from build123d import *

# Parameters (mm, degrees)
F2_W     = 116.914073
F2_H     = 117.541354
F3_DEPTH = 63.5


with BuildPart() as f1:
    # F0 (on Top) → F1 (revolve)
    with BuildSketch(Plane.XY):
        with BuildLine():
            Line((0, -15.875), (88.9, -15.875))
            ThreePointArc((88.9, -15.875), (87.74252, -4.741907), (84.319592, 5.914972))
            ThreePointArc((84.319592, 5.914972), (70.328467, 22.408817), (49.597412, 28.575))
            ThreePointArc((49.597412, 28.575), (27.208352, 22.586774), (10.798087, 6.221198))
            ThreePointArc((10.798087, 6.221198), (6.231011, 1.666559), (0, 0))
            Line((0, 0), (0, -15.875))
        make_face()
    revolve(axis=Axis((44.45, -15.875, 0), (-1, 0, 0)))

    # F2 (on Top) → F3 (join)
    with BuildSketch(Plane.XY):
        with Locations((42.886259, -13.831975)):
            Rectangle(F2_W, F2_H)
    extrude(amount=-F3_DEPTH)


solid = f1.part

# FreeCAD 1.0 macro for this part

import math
import FreeCAD as App
import Part
import Sketcher
Q = App.Units.Quantity

doc = App.newDocument("Part")
body = doc.addObject("PartDesign::Body", "Body")

# Sketch on XY plane
sketch1 = body.newObject("Sketcher::SketchObject", "Sketch")
sketch1.AttachmentSupport = (doc.getObject("XY_Plane"), [""])
sketch1.MapMode = "FlatFace"
sketch1.addGeometry([
    Part.LineSegment(App.Vector(0, -16, 0), App.Vector(89, -16, 0)),  # 0
    Part.ArcOfCircle(Part.Circle(App.Vector(35, -16, 0), App.Vector(0, 0, 1), 54), math.radians(0), math.radians(24)),  # 1
    Part.ArcOfCircle(Part.Circle(App.Vector(50, -9, 0), App.Vector(0, 0, 1), 38), math.radians(24), math.radians(90)),  # 2
    Part.ArcOfCircle(Part.Circle(App.Vector(50, -16, 0), App.Vector(0, 0, 1), 45), math.radians(90), math.radians(150)),  # 3
    Part.ArcOfCircle(Part.Circle(App.Vector(0, 12, 0), App.Vector(0, 0, 1), 12), math.radians(-90), math.radians(-30)),  # 4
    Part.LineSegment(App.Vector(0, 0, 0), App.Vector(0, -16, 0)),  # 5
], False)
sketch1.addGeometry(Part.LineSegment(App.Vector(89, -16, 0), App.Vector(0, -16, 0)), True)  # axis
sketch1.addConstraint([
    Sketcher.Constraint("Coincident", 0, 2, 1, 1),
    Sketcher.Constraint("Tangent", 1, 2, 2, 1),
    Sketcher.Constraint("Tangent", 2, 2, 3, 1),
    Sketcher.Constraint("Tangent", 3, 2, 4, 2),
    Sketcher.Constraint("Coincident", 4, 1, 5, 1),
    Sketcher.Constraint("Coincident", 5, 2, 0, 1),
    Sketcher.Constraint("Horizontal", 0),
    Sketcher.Constraint("Vertical", 5),
    Sketcher.Constraint("Horizontal", 6),
    Sketcher.Constraint("Coincident", 4, 1, -1, 1),
    Sketcher.Constraint("Coincident", 6, 1, 0, 2),
    Sketcher.Constraint("PointOnObject", 4, 3, -2),
    Sketcher.Constraint("PointOnObject", 6, 2, -2),
    Sketcher.Constraint("Vertical", 2, 3, 3, 3),
    Sketcher.Constraint("DistanceX", 0, 1, 0, 2, Q("3.5 in")),
    Sketcher.Constraint("DistanceY", 5, 2, 5, 1, Q("0.625 in")),
    Sketcher.Constraint("DistanceY", 1, 3, 2, 2, Q("1.7500001 in")),
    Sketcher.Constraint("DistanceY", 1, 3, -1, 1, Q("0.6250001 in")),
    Sketcher.Constraint("Radius", 2, Q("37.932581 mm")),
    Sketcher.Constraint("Radius", 3, Q("44.84875 mm")),
    Sketcher.Constraint("Radius", 1, Q("54.119974 mm")),
])
revolution = body.newObject("PartDesign::Revolution", "Revolution")
revolution.Profile = sketch1
revolution.ReferenceAxis = (sketch1, ["Axis0"])
revolution.Angle = 360

# Sketch on XY plane
sketch2 = body.newObject("Sketcher::SketchObject", "Sketch001")
sketch2.AttachmentSupport = (doc.getObject("XY_Plane"), [""])
sketch2.MapMode = "FlatFace"
sketch2.addGeometry([
    Part.LineSegment(App.Vector(-16, 45, 0), App.Vector(-16, -73, 0)),
    Part.LineSegment(App.Vector(-16, -73, 0), App.Vector(101, -73, 0)),
    Part.LineSegment(App.Vector(101, -73, 0), App.Vector(101, 45, 0)),
    Part.LineSegment(App.Vector(101, 45, 0), App.Vector(-16, 45, 0)),
], False)
sketch2.addConstraint([
    Sketcher.Constraint("Coincident", 0, 2, 1, 1),
    Sketcher.Constraint("Coincident", 1, 2, 2, 1),
    Sketcher.Constraint("Coincident", 2, 2, 3, 1),
    Sketcher.Constraint("Coincident", 3, 2, 0, 1),
    Sketcher.Constraint("Vertical", 0),
    Sketcher.Constraint("Horizontal", 1),
    Sketcher.Constraint("Vertical", 2),
    Sketcher.Constraint("Horizontal", 3),
    Sketcher.Constraint("DistanceX", 1, 1, 1, 2, Q("116.914073 mm")),
    Sketcher.Constraint("DistanceY", 0, 2, 0, 1, Q("117.541354 mm")),
    Sketcher.Constraint("DistanceX", 0, 2, -1, 1, Q("15.570778 mm")),
    Sketcher.Constraint("DistanceY", 0, 2, -1, 1, Q("72.602652 mm")),
])
pad1 = body.newObject("PartDesign::Pad", "Pad")
pad1.Profile = sketch2
pad1.Length = Q("2.5 in")
pad1.Reversed = True

doc.recompute()
